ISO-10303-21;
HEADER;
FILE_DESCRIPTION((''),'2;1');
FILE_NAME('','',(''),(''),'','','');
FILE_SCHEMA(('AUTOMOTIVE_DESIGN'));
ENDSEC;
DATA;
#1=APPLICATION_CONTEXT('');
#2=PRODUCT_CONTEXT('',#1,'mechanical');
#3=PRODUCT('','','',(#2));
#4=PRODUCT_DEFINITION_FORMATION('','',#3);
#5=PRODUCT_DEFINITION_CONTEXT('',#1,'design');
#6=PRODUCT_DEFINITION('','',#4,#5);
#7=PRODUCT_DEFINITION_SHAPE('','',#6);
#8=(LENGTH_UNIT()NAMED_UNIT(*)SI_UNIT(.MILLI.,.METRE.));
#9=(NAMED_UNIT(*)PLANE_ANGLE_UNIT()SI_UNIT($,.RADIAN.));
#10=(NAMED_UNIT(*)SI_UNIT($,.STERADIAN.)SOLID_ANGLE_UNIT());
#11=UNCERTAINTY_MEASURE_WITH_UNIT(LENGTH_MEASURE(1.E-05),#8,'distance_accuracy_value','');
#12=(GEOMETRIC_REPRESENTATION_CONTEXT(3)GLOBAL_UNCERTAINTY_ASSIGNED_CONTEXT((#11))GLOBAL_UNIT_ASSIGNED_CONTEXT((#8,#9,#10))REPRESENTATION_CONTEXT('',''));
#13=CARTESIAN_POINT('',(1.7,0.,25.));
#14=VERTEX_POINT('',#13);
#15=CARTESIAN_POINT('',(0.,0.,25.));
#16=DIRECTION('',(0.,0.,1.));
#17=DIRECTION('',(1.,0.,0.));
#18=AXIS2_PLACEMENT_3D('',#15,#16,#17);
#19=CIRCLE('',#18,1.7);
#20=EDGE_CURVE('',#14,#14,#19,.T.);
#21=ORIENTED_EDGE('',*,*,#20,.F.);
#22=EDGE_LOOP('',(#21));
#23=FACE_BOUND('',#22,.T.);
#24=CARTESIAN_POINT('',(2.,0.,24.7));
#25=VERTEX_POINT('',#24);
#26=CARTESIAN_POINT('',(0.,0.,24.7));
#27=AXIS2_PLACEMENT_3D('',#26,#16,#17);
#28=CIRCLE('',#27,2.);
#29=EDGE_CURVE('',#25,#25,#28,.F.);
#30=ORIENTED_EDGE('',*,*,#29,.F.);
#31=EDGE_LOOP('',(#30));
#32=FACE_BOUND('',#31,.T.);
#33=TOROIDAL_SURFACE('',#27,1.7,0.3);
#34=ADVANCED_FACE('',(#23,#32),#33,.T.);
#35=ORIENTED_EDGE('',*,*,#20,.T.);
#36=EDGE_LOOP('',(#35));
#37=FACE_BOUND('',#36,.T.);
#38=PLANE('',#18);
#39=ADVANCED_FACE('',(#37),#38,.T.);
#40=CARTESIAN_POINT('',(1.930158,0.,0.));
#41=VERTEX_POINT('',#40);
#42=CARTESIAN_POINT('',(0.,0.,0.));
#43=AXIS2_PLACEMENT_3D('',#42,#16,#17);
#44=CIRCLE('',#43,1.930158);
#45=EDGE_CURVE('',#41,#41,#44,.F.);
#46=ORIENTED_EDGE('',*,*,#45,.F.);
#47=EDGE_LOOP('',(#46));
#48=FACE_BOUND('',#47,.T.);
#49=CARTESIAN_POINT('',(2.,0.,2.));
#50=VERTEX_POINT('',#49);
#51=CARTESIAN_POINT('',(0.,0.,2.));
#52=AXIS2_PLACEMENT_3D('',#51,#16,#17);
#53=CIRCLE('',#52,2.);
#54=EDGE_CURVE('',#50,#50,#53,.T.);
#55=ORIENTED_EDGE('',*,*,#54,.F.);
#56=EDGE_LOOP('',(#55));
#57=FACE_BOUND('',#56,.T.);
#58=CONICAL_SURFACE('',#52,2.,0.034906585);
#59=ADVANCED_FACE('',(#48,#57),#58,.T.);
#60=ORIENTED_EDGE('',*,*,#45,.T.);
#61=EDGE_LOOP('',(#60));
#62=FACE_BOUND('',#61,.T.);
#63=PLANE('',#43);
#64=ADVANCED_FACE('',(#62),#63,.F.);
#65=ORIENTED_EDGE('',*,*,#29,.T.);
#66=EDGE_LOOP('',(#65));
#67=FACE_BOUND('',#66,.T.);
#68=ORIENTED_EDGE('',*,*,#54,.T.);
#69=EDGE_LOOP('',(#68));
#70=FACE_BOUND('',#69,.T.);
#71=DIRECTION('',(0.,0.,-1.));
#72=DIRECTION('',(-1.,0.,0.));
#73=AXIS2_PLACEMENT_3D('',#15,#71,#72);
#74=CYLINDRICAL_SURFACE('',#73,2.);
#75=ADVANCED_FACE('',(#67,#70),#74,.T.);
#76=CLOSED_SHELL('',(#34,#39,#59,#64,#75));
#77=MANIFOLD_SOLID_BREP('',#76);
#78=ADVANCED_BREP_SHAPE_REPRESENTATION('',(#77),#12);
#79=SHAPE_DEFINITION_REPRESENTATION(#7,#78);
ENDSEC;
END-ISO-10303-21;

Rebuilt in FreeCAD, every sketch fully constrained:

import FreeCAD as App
import Part
import Sketcher
from FreeCAD import Vector
Q = App.Units.Quantity


def edges_at(feature, points):
    """Names of the edges that pass closest to the given points."""
    edges = feature.Shape.Edges
    near = lambda p: min(range(len(edges)), key=lambda i: edges[i].distToShape(Part.Vertex(*p))[0])
    return sorted({f"Edge{near(p) + 1}" for p in points})

doc = App.newDocument("Part")
body = doc.addObject("PartDesign::Body", "Body")

# Sketch on XY plane
sketch1 = doc.addObject("Sketcher::SketchObject", "Sketch")
body.addObject(sketch1)
sketch1.AttachmentSupport = (doc.XY_Plane, [""])
sketch1.MapMode = "FlatFace"
sketch1.addGeometry(Part.Circle(Vector(0, 0, 0), Vector(0, 0, 1), 2), False)
sketch1.addConstraint([
    Sketcher.Constraint("Coincident", 0, 3, -1, 1),
    Sketcher.Constraint("Diameter", 0, Q("4 mm")),
])
pad1 = doc.addObject("PartDesign::Pad", "Pad")
body.addObject(pad1)
pad1.Profile = sketch1
pad1.Length = 25
doc.recompute()

chamfer = doc.addObject("PartDesign::Chamfer", "Chamfer")
body.addObject(chamfer)
chamfer.Base = (pad1, edges_at(pad1, [(-2, 0, 0)]))
chamfer.ChamferType = "Two distances"
chamfer.Size = 2
chamfer.Size2 = 0.069842
doc.recompute()

fillet = doc.addObject("PartDesign::Fillet", "Fillet")
body.addObject(fillet)
fillet.Base = (chamfer, edges_at(chamfer, [(-2, 0, 25)]))
fillet.Radius = 0.3

doc.recompute()
